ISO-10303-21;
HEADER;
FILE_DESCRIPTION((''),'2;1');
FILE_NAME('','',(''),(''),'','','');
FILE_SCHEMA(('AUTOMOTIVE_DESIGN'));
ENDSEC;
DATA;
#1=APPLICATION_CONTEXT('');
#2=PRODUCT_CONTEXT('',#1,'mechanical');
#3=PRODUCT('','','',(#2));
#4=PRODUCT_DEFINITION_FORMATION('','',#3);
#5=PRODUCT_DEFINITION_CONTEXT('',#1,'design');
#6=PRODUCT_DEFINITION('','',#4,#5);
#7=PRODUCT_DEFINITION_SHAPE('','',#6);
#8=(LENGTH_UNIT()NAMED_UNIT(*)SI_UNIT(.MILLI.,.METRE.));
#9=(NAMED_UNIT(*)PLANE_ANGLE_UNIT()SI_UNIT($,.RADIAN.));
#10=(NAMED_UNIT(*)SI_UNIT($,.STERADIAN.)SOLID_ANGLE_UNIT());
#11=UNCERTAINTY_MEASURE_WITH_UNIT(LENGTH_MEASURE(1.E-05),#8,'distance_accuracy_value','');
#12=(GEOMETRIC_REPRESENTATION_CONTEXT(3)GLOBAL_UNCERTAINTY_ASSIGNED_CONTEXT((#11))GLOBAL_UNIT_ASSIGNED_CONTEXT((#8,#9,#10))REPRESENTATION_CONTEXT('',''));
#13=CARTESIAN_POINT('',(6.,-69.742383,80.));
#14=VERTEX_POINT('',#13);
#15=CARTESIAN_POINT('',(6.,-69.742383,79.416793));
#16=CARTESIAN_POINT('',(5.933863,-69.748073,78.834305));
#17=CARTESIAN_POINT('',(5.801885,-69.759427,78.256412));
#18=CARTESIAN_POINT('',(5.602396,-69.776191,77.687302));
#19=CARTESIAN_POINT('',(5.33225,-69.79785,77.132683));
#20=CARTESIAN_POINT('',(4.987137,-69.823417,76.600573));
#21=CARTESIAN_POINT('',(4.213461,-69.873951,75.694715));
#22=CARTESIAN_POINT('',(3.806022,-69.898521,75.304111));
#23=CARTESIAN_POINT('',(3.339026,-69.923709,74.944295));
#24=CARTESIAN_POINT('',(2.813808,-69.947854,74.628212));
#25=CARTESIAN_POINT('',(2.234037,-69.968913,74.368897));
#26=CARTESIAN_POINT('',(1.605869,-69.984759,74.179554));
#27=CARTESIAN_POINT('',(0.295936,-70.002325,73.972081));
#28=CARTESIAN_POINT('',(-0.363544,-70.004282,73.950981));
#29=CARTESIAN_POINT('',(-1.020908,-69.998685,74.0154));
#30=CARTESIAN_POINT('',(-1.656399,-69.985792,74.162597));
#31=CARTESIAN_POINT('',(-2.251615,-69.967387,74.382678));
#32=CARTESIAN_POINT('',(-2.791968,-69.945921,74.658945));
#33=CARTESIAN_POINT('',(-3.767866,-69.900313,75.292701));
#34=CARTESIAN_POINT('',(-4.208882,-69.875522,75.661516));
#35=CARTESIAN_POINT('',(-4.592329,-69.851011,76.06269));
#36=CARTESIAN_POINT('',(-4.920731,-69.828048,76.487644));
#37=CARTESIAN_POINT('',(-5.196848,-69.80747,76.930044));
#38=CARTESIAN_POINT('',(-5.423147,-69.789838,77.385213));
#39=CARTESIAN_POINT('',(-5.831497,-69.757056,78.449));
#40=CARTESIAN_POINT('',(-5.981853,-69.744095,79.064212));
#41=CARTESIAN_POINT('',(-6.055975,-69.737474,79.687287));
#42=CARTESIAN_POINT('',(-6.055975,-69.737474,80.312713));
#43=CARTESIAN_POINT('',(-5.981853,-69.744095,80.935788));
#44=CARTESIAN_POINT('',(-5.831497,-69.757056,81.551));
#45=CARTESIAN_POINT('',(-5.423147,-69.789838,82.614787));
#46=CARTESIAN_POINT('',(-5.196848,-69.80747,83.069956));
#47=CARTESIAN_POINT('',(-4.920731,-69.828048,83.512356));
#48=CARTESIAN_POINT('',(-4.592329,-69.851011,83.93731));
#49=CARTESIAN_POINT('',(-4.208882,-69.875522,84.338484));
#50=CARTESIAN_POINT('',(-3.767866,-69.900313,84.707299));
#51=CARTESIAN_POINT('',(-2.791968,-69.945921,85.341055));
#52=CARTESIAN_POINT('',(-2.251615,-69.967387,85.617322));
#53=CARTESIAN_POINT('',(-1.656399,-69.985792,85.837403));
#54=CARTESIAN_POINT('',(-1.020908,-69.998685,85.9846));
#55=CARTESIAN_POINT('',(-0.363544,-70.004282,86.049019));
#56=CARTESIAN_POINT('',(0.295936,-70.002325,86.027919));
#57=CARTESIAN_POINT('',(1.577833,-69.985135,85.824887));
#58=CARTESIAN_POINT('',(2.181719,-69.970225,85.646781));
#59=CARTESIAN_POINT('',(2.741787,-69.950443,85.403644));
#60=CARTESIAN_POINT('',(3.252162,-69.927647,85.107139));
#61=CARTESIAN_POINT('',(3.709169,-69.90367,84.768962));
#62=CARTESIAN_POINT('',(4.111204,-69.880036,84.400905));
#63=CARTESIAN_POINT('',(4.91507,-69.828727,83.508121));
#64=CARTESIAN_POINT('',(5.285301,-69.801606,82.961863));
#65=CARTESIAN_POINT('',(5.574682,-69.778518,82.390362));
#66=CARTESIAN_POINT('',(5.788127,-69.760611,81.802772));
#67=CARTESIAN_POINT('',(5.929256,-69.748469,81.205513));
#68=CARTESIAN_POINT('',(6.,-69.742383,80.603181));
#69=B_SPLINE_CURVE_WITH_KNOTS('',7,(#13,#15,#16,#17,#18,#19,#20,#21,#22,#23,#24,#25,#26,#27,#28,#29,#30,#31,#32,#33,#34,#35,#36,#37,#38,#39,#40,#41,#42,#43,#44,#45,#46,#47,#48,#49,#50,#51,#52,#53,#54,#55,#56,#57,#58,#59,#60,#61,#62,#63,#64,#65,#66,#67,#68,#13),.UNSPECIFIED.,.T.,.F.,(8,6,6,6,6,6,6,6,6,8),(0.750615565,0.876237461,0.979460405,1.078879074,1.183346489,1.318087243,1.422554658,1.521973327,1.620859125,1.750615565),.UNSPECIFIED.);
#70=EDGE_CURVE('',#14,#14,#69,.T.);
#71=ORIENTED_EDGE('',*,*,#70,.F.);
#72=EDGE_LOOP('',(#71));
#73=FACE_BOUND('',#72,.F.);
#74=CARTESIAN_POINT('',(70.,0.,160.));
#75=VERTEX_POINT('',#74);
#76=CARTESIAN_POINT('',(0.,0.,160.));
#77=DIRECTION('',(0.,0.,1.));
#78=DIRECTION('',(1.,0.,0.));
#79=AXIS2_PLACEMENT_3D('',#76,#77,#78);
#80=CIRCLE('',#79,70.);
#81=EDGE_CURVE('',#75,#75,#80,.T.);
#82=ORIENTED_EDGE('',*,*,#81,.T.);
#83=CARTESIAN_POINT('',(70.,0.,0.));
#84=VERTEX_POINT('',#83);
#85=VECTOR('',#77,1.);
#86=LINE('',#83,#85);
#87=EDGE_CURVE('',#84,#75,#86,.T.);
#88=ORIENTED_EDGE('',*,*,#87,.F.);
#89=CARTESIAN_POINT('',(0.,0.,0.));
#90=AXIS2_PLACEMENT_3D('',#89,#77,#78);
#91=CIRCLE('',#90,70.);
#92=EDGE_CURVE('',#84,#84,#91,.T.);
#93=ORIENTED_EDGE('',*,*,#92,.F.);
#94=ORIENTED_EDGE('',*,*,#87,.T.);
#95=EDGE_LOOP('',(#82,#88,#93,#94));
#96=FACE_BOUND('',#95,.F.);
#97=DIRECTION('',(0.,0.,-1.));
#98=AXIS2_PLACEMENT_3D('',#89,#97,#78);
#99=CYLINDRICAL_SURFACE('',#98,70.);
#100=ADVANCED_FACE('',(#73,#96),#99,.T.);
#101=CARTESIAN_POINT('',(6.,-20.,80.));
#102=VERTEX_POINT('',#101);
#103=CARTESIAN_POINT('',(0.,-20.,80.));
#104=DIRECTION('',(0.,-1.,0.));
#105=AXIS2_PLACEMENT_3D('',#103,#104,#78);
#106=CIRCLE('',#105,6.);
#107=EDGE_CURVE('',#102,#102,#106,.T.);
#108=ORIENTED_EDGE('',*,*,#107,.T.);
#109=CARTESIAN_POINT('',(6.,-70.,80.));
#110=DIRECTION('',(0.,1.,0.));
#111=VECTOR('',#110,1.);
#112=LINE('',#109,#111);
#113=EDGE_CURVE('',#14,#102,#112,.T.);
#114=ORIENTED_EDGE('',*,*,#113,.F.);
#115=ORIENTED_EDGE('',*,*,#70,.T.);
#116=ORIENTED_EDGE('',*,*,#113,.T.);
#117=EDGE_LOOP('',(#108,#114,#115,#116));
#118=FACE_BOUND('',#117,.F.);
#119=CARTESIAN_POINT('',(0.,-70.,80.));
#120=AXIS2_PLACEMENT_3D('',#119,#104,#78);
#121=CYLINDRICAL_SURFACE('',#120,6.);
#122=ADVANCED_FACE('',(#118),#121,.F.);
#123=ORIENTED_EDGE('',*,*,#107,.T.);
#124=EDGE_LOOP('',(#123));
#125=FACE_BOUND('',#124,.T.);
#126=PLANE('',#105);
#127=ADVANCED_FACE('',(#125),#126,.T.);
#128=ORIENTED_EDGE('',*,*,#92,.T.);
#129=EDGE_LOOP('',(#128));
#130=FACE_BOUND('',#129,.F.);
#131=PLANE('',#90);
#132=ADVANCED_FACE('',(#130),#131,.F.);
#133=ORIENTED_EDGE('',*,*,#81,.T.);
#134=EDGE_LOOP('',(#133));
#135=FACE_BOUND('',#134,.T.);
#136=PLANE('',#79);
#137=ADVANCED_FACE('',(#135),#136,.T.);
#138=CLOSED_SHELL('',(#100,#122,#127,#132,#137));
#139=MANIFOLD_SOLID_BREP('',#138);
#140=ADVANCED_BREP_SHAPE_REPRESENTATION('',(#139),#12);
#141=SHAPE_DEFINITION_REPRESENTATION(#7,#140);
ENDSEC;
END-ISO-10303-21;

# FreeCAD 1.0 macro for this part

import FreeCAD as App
import Part
import Sketcher

V = App.Vector
Q = App.Units.Quantity

doc = App.newDocument("Part")
body = doc.addObject("PartDesign::Body", "Body")

sketch1 = body.newObject("Sketcher::SketchObject", "Sketch")
sketch1.AttachmentSupport = (doc.getObject("XY_Plane"), [""])
sketch1.MapMode = "FlatFace"
sketch1.addGeometry(Part.Circle(V(0, 0, 0), V(0, 0, 1), 70), False)
sketch1.addConstraint(Sketcher.Constraint("Coincident", 0, 3, -1, 1))
sketch1.addConstraint(Sketcher.Constraint("Diameter", 0, Q("140 mm")))
pad1 = body.newObject("PartDesign::Pad", "Pad")
pad1.Profile = sketch1
pad1.Length = 160

sketch2 = body.newObject("Sketcher::SketchObject", "Sketch001")
sketch2.AttachmentSupport = (doc.getObject("XZ_Plane"), [""])
sketch2.MapMode = "FlatFace"
sketch2.AttachmentOffset = App.Placement(V(0, 0, 70), App.Rotation())
sketch2.addGeometry(Part.Circle(V(0, 80, 0), V(0, 0, 1), 6), False)
sketch2.addConstraint(Sketcher.Constraint("PointOnObject", 0, 3, -2))
sketch2.addConstraint(Sketcher.Constraint("Diameter", 0, Q("12 mm")))
sketch2.addConstraint(Sketcher.Constraint("DistanceY", -1, 1, 0, 3, Q("80 mm")))
pocket1 = body.newObject("PartDesign::Pocket", "Pocket")
pocket1.Profile = sketch2
pocket1.Length = 50

doc.recompute()
